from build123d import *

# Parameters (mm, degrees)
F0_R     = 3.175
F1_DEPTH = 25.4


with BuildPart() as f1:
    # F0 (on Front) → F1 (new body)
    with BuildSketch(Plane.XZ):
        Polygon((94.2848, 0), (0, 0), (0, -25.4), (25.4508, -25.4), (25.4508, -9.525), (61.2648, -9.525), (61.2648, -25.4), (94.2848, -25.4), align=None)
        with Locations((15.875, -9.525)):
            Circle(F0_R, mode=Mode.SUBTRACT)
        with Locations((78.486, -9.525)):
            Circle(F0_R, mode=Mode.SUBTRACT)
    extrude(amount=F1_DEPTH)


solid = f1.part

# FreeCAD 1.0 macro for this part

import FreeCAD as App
import Part
import Sketcher
from FreeCAD import Vector
Q = App.Units.Quantity


def add_polygon(sketch, points):
    """Adds a closed chain of lines whose ends are joined by coincident constraints."""
    first, n = sketch.GeometryCount, len(points)
    for a, b in zip(points, points[1:] + points[:1]):
        sketch.addGeometry(Part.LineSegment(App.Vector(*a, 0), App.Vector(*b, 0)), False)
    for i in range(n):
        sketch.addConstraint(Sketcher.Constraint("Coincident", first + i, 2, first + (i + 1) % n, 1))

doc = App.newDocument("Part")
body = doc.addObject("PartDesign::Body", "Body")

sketch1 = body.newObject("Sketcher::SketchObject", "Sketch")
sketch1.AttachmentSupport = (doc.getObject("XZ_Plane"), [""])
sketch1.MapMode = "FlatFace"
add_polygon(sketch1, [(94.3, 0), (0, 0), (0, -25.4), (25.5, -25.4), (25.5, -9.5), (61.3, -9.5), (61.3, -25.4), (94.3, -25.4)])
sketch1.addGeometry(Part.Circle(Vector(15.9, -9.5, 0), Vector(0, 0, 1), 3.2), False)
sketch1.addGeometry(Part.Circle(Vector(78.5, -9.5, 0), Vector(0, 0, 1), 3.2), False)
sketch1.addConstraint([
    Sketcher.Constraint("Horizontal", 0),
    Sketcher.Constraint("Vertical", 1),
    Sketcher.Constraint("Horizontal", 2),
    Sketcher.Constraint("Vertical", 3),
    Sketcher.Constraint("Horizontal", 4),
    Sketcher.Constraint("Vertical", 5),
    Sketcher.Constraint("Horizontal", 6),
    Sketcher.Constraint("Vertical", 7),
    Sketcher.Constraint("Coincident", 0, 2, -1, 1),
    Sketcher.Constraint("Equal", 8, 9),
    Sketcher.Constraint("Horizontal", 8, 3, 9, 3),
    Sketcher.Constraint("Horizontal", 9, 3, 3, 2),
    Sketcher.Constraint("Horizontal", 2, 2, 5, 2),
    Sketcher.Constraint("Diameter", 8, Q("0.25 in")),
    Sketcher.Constraint("DistanceY", 1, 2, 1, 1, Q("1 in")),
    Sketcher.Constraint("DistanceX", 6, 1, 6, 2, Q("1.3 in")),
    Sketcher.Constraint("DistanceX", 4, 1, 4, 2, Q("1.41 in")),
    Sketcher.Constraint("DistanceX", 0, 2, 0, 1, Q("3.712 in")),
    Sketcher.Constraint("DistanceY", 3, 1, 3, 2, Q("0.625 in")),
    Sketcher.Constraint("DistanceX", -1, 1, 9, 3, Q("3.09 in")),
    Sketcher.Constraint("DistanceX", -1, 1, 8, 3, Q("0.625 in")),
])
pad1 = body.newObject("PartDesign::Pad", "Pad")
pad1.Profile = sketch1
pad1.Length = Q("1 in")

doc.recompute()
